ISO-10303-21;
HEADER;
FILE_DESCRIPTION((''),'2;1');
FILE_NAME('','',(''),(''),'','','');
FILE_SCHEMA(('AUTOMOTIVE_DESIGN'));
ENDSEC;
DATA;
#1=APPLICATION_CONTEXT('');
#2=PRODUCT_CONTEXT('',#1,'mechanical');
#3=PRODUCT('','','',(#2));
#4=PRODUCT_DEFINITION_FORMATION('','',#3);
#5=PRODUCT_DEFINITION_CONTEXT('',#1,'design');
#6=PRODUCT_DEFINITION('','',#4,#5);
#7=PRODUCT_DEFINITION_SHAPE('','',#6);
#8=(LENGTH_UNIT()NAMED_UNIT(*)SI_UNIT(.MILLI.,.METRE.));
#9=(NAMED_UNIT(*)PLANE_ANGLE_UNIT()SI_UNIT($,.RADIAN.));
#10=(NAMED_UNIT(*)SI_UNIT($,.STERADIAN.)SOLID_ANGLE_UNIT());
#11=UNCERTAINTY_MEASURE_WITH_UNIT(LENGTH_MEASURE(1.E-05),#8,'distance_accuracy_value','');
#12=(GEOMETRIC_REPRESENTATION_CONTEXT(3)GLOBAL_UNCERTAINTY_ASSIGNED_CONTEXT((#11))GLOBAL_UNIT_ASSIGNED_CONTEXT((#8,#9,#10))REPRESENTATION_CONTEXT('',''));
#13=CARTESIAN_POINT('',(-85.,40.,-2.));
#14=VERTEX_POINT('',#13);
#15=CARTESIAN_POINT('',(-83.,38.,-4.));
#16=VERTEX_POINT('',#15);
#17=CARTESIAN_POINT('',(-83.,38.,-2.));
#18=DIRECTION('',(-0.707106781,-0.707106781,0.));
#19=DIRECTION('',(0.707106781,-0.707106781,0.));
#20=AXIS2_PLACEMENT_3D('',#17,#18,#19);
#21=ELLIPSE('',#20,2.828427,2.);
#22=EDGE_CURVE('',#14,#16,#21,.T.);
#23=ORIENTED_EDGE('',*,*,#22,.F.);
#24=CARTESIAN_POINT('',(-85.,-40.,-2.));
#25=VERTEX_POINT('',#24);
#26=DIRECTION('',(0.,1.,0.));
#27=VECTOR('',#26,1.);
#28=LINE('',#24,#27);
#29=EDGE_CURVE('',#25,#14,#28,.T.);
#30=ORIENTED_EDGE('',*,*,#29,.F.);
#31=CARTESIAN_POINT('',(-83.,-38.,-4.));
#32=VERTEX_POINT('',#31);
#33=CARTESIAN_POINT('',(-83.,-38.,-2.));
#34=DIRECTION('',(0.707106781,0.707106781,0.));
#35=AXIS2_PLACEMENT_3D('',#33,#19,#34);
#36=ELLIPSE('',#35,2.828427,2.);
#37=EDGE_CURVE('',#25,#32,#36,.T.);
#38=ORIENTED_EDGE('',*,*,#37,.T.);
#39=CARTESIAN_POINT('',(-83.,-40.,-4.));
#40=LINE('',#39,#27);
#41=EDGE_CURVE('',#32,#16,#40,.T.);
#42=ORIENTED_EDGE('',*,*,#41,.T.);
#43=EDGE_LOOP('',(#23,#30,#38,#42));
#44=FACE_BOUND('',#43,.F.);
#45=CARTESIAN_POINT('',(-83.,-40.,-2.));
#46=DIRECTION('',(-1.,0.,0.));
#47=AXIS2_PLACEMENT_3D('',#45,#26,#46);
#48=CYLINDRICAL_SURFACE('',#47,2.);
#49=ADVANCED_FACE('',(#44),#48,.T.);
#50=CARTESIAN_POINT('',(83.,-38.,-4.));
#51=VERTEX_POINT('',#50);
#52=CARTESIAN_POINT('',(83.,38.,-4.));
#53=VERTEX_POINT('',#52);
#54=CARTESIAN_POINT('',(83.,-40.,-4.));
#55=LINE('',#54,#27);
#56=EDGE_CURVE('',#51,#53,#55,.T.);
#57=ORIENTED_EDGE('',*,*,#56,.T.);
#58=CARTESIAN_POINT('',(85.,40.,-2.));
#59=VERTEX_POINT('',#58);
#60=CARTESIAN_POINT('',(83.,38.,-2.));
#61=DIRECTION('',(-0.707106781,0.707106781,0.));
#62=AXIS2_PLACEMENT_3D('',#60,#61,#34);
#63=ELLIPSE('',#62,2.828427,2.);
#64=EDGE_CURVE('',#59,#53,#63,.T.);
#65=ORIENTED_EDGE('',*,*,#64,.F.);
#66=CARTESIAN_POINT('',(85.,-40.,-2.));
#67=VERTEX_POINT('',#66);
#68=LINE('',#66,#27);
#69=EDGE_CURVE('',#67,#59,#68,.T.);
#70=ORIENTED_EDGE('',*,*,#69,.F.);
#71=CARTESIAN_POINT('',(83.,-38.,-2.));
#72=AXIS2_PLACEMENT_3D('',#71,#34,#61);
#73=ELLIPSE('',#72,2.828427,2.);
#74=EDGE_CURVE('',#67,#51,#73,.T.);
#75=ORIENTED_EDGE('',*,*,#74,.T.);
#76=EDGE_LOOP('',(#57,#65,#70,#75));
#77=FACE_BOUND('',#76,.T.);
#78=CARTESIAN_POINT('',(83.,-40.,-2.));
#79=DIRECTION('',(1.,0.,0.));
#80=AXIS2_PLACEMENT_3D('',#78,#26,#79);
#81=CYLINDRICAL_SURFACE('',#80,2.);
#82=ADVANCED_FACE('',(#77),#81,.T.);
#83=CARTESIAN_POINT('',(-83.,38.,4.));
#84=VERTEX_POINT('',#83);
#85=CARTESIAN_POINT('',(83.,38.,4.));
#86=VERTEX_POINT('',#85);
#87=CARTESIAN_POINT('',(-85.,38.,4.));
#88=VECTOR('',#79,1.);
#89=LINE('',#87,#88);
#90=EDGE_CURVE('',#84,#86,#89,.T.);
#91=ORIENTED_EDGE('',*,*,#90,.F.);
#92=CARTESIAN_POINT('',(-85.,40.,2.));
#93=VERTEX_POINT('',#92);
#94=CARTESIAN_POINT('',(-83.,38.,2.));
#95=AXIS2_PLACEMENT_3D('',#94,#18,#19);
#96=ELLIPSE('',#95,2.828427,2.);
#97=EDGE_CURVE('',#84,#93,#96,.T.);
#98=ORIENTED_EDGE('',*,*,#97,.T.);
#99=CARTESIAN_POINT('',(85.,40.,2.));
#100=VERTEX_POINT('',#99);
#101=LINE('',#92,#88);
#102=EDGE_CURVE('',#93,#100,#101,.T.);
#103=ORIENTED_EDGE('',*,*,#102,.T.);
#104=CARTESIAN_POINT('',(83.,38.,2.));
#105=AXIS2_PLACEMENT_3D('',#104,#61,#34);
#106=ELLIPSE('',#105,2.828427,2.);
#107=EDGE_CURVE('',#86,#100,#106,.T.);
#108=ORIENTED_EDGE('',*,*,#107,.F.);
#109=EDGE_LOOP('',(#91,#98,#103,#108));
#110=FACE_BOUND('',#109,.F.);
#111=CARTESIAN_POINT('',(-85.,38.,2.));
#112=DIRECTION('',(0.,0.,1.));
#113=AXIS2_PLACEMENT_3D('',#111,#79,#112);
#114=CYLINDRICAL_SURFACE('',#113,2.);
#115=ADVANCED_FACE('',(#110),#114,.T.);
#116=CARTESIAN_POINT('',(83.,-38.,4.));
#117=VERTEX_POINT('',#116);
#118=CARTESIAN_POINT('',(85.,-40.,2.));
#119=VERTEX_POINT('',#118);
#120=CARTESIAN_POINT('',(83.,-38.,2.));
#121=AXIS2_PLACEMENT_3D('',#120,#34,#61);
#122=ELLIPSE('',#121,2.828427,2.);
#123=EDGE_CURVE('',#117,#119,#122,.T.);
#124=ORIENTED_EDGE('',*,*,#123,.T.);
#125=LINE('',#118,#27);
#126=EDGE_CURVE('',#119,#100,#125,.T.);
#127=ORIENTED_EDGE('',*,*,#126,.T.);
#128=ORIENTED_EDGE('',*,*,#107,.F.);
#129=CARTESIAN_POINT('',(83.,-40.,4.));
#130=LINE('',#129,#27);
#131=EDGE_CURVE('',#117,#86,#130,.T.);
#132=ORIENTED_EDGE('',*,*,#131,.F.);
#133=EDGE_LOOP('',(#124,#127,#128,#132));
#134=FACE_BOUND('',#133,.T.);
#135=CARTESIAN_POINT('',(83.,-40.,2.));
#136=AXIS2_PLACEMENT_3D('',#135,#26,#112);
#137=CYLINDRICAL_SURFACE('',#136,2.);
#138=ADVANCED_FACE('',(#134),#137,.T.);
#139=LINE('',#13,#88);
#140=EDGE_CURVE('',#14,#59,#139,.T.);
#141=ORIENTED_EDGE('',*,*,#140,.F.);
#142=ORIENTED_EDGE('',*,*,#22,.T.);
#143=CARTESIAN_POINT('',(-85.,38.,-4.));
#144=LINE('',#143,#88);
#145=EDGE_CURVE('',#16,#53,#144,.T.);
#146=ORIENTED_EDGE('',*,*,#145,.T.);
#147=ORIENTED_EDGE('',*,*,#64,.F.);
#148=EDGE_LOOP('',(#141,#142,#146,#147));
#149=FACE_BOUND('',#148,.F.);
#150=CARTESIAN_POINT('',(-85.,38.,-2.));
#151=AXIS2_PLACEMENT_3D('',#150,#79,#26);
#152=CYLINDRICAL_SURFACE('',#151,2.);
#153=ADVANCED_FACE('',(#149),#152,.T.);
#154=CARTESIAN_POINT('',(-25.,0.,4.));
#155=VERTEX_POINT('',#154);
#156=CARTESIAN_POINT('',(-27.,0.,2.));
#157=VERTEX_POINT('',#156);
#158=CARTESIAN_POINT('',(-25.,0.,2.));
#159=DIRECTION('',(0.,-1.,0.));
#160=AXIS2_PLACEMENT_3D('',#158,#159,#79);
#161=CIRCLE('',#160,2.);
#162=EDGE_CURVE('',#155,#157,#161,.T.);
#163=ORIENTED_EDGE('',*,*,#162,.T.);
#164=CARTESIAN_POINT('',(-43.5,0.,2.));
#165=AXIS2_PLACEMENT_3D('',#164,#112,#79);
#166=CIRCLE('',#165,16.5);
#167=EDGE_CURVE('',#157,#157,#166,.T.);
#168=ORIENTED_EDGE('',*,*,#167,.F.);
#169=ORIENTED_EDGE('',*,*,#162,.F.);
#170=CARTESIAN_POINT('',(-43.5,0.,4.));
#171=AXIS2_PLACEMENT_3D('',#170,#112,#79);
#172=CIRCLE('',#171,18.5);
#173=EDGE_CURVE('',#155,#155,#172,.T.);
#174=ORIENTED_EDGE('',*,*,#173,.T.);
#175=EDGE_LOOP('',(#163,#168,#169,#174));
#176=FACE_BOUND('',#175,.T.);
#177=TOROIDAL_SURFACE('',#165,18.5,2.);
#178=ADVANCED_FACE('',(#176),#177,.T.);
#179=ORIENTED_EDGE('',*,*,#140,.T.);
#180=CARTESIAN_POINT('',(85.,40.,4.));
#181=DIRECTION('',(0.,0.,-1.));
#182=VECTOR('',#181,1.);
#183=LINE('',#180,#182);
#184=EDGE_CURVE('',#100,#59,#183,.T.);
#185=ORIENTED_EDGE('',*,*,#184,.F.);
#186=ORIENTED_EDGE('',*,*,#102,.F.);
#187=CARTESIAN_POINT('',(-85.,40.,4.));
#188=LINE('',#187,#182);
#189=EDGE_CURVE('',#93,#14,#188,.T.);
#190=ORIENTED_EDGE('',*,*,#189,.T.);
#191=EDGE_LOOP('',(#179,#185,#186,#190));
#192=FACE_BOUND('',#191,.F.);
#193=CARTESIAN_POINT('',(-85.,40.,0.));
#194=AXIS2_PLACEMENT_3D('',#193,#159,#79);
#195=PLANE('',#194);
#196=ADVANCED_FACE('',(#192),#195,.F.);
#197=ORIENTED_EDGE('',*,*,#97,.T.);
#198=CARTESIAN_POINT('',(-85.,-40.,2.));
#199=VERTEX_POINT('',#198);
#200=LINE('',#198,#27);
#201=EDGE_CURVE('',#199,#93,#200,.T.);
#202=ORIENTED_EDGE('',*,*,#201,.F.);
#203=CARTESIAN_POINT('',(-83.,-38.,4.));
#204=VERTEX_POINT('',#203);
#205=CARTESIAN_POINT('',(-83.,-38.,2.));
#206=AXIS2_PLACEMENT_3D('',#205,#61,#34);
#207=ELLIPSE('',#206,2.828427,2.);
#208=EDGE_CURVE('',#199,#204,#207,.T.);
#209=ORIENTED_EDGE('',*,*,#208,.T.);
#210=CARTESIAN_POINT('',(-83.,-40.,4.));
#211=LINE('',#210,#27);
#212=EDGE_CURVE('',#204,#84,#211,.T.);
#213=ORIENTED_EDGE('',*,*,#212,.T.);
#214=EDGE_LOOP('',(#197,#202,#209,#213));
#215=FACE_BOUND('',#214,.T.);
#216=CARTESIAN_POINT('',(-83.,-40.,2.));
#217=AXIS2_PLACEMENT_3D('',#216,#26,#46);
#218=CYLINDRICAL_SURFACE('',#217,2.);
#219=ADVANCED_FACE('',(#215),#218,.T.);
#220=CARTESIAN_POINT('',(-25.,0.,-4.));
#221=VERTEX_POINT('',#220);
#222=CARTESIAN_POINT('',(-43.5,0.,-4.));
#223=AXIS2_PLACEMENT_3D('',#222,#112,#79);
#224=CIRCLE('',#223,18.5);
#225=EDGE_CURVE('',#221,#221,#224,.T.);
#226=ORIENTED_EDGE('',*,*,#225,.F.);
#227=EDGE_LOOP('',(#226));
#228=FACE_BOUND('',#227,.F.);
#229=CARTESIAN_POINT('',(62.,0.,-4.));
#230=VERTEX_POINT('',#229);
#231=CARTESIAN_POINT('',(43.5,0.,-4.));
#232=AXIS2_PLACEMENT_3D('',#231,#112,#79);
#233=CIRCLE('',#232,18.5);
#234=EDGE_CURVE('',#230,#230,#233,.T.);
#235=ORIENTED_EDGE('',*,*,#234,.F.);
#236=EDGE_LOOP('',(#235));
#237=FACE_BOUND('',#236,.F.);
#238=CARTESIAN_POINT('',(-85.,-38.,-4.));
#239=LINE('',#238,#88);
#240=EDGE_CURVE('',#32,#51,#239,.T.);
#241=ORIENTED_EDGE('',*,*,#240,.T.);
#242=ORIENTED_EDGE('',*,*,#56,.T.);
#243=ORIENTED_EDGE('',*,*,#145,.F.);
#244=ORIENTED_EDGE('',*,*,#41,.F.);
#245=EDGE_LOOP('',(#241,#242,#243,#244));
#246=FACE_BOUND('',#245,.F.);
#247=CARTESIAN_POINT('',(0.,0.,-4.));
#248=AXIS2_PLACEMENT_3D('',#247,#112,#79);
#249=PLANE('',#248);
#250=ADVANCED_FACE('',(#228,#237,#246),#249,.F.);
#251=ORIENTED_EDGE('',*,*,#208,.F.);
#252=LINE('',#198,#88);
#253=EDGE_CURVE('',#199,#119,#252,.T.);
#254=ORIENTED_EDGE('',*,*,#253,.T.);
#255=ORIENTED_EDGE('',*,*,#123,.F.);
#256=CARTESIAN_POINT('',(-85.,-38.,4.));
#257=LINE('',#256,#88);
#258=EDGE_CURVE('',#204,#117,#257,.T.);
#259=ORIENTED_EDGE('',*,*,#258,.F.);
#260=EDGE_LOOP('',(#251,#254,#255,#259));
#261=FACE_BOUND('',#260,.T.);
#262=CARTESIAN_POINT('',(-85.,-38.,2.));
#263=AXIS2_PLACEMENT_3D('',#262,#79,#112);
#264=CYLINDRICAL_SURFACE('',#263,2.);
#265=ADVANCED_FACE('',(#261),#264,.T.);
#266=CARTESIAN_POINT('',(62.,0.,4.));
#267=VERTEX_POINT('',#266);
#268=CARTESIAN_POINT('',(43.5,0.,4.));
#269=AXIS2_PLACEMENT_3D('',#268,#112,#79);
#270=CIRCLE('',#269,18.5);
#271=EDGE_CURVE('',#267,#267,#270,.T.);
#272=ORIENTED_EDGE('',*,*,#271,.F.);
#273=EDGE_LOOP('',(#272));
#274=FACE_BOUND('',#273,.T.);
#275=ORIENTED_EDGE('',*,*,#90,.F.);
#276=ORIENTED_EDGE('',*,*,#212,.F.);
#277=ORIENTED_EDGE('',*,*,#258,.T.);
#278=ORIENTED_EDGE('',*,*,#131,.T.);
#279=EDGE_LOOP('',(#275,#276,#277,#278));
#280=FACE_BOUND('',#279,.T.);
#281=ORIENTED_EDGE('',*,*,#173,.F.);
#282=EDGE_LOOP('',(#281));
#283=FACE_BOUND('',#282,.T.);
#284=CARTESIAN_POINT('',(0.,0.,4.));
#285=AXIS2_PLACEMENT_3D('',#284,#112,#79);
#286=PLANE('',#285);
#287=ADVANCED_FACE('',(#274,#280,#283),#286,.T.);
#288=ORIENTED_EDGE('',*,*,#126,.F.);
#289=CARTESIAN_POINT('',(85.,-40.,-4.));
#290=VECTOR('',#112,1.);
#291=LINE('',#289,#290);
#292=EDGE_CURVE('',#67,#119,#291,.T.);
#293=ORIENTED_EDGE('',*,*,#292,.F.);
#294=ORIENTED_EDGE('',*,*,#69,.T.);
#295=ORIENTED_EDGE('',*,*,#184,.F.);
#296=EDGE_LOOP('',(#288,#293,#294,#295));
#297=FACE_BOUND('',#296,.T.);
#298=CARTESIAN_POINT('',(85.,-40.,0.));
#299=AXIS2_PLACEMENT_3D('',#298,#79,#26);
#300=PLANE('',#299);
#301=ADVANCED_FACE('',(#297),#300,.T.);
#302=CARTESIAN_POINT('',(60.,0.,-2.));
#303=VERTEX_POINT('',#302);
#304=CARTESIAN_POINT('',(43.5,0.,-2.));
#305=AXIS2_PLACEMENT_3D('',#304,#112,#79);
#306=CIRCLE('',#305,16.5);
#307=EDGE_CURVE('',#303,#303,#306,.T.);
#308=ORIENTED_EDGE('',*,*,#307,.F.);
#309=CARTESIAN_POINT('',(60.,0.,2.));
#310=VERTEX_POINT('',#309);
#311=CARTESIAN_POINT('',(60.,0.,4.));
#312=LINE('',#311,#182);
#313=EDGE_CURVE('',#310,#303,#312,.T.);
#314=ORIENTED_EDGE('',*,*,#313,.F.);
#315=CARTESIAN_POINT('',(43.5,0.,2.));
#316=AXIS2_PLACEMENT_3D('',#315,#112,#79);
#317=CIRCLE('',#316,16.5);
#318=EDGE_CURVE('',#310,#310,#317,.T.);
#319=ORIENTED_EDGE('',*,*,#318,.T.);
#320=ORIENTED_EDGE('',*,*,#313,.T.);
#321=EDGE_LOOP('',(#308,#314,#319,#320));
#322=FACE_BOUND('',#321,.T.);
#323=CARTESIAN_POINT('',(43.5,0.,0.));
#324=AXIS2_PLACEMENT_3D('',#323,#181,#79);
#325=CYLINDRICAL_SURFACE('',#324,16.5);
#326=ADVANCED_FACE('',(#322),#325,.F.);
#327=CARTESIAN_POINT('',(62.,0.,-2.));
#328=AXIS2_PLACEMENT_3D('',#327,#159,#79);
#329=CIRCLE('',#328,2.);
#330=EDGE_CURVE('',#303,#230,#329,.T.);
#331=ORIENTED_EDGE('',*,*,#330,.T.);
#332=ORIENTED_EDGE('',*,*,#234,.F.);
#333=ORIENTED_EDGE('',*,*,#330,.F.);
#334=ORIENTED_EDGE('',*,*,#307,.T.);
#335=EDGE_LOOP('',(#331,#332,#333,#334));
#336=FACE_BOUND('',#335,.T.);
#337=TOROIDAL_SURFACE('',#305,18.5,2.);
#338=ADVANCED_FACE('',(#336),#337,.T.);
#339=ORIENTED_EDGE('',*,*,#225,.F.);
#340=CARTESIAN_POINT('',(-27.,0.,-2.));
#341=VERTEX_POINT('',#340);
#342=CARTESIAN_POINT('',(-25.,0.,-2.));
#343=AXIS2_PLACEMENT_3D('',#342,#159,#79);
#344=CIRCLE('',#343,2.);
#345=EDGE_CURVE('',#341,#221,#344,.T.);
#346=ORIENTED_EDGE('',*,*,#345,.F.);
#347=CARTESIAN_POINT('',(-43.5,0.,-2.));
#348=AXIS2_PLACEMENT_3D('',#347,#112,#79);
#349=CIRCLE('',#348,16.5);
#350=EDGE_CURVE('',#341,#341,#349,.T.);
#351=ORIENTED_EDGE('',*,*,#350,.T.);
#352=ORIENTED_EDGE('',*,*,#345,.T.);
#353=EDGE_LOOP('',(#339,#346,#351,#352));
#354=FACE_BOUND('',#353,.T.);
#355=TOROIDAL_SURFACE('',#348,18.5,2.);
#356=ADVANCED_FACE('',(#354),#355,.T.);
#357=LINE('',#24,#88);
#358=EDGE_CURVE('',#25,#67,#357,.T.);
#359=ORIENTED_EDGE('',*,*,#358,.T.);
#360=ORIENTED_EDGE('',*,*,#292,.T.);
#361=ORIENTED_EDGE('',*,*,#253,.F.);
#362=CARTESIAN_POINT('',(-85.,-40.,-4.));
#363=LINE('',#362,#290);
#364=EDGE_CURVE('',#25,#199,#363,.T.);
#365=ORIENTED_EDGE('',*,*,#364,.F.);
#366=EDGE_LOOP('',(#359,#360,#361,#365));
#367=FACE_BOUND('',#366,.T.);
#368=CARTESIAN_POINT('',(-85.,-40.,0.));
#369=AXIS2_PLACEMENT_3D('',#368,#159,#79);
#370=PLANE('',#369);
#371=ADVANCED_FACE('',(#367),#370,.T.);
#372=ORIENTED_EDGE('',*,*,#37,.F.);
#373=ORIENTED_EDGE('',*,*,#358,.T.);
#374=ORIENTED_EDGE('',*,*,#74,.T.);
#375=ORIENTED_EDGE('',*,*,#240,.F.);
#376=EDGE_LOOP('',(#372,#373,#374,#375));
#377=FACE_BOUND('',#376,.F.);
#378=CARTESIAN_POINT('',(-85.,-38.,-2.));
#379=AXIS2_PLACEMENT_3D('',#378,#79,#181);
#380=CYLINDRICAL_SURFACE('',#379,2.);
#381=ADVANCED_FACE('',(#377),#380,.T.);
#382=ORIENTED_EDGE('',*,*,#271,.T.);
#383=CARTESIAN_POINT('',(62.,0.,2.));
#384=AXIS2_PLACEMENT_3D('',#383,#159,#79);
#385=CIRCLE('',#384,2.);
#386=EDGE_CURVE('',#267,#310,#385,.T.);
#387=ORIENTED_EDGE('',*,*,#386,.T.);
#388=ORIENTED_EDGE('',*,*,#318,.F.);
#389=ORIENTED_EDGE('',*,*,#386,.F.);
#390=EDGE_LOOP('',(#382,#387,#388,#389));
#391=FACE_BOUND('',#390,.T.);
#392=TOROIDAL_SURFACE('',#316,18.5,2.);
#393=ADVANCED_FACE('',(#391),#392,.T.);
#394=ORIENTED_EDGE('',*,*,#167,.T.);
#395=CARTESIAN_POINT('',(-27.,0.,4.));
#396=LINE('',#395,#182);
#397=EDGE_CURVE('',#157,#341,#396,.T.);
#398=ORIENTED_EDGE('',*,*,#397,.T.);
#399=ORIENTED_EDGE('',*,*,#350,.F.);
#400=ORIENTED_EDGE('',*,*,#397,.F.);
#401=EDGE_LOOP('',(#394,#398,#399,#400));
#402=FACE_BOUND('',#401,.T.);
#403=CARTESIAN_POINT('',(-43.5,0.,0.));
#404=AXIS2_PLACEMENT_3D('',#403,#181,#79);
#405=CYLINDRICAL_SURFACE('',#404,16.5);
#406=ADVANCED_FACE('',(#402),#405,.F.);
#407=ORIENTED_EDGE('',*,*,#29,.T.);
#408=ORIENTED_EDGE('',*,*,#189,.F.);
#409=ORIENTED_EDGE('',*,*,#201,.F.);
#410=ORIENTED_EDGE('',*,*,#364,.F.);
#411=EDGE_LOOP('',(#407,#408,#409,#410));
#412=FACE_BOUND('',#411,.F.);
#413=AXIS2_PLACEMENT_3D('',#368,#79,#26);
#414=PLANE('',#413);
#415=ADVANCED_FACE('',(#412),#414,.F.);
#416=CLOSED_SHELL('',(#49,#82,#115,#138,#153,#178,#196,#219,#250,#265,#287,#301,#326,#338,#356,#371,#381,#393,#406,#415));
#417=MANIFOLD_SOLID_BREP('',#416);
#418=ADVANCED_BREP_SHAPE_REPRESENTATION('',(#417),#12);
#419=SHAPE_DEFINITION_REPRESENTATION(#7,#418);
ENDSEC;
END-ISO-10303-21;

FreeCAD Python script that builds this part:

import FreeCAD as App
import Part
import Sketcher

V = App.Vector
Q = App.Units.Quantity


def edges_at(feature, points):
    """Names of the edges that pass closest to the given points."""
    edges = feature.Shape.Edges
    near = lambda p: min(range(len(edges)), key=lambda i: edges[i].distToShape(Part.Vertex(*p))[0])
    return sorted({f"Edge{near(p) + 1}" for p in points})


def add_polygon(sketch, points):
    """Adds a closed chain of lines whose ends are joined by coincident constraints."""
    first, n = sketch.GeometryCount, len(points)
    for a, b in zip(points, points[1:] + points[:1]):
        sketch.addGeometry(Part.LineSegment(App.Vector(*a, 0), App.Vector(*b, 0)), False)
    for i in range(n):
        sketch.addConstraint(Sketcher.Constraint("Coincident", first + i, 2, first + (i + 1) % n, 1))

doc = App.newDocument("Part")
body = doc.addObject("PartDesign::Body", "Body")

sketch1 = body.newObject("Sketcher::SketchObject", "Sketch")
sketch1.AttachmentSupport = (doc.getObject("XY_Plane"), [""])
sketch1.MapMode = "FlatFace"
add_polygon(sketch1, [(-85, 40), (-85, -40), (85, -40), (85, 40)])
sketch1.addGeometry(Part.Circle(V(-44, 0, 0), V(0, 0, 1), 16), False)
sketch1.addGeometry(Part.Circle(V(44, 0, 0), V(0, 0, 1), 16), False)
sketch1.addConstraint(Sketcher.Constraint("Vertical", 0))
sketch1.addConstraint(Sketcher.Constraint("Horizontal", 1))
sketch1.addConstraint(Sketcher.Constraint("Vertical", 2))
sketch1.addConstraint(Sketcher.Constraint("Horizontal", 3))
sketch1.addConstraint(Sketcher.Constraint("Equal", 4, 5))
sketch1.addConstraint(Sketcher.Constraint("Symmetric", 4, 3, 5, 3, -1, 1))
sketch1.addConstraint(Sketcher.Constraint("Symmetric", 0, 2, 2, 2, -1, 1))
sketch1.addConstraint(Sketcher.Constraint("PointOnObject", 4, 3, -1))
sketch1.addConstraint(Sketcher.Constraint("Diameter", 4, Q("33 mm")))
sketch1.addConstraint(Sketcher.Constraint("DistanceX", 1, 1, 1, 2, Q("170 mm")))
sketch1.addConstraint(Sketcher.Constraint("DistanceY", 0, 2, 0, 1, Q("80 mm")))
sketch1.addConstraint(Sketcher.Constraint("DistanceX", 4, 3, 5, 3, Q("87 mm")))
pad1 = body.newObject("PartDesign::Pad", "Pad")
pad1.Profile = sketch1
pad1.Length = 8
pad1.Midplane = True
doc.recompute()

fillet = body.newObject("PartDesign::Fillet", "Fillet")
fillet.Base = (pad1, edges_at(pad1, [
    (85, 0, -4),
    (0, 40, -4),
    (-85, 0, -4),
    (0, -40, -4),
    (-60, 0, -4),
    (27, 0, -4),
    (85, 0, 4),
    (0, 40, 4),
    (-85, 0, 4),
    (0, -40, 4),
    (-60, 0, 4),
    (27, 0, 4),
]))
fillet.Radius = 2

doc.recompute()
